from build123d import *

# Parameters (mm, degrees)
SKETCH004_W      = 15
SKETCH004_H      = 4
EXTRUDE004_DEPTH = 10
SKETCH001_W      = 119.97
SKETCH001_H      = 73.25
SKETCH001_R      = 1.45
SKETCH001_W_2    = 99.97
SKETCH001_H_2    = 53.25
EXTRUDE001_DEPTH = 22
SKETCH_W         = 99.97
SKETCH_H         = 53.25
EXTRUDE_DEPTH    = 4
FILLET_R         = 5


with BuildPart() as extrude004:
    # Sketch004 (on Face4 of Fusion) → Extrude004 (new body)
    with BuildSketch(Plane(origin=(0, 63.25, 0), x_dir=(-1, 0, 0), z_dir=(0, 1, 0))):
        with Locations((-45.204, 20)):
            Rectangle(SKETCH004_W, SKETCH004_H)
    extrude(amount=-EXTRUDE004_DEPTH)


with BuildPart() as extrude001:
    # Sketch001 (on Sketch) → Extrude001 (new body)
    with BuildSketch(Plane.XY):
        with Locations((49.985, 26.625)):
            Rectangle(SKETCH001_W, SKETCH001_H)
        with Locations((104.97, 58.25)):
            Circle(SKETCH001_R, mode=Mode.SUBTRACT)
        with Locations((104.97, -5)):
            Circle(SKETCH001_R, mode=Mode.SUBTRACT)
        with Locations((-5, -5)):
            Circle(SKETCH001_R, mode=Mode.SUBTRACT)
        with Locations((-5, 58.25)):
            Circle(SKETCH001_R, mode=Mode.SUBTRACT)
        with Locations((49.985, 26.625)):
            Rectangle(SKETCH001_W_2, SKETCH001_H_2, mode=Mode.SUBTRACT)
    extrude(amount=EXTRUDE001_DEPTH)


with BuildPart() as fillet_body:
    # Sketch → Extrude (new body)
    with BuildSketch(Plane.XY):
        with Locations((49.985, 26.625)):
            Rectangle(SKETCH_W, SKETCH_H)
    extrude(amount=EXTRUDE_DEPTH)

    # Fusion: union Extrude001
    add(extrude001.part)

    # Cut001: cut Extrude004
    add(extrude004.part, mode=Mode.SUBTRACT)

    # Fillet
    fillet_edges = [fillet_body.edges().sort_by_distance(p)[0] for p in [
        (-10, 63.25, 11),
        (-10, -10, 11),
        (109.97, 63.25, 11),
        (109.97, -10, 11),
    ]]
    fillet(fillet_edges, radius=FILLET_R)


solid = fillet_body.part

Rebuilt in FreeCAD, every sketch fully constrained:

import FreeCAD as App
import Part
import Sketcher
from FreeCAD import Vector


def edges_at(feature, points):
    """Names of the edges that pass closest to the given points."""
    edges = feature.Shape.Edges
    near = lambda p: min(range(len(edges)), key=lambda i: edges[i].distToShape(Part.Vertex(*p))[0])
    return sorted({f"Edge{near(p) + 1}" for p in points})


def add_polygon(sketch, points):
    """Adds a closed chain of lines whose ends are joined by coincident constraints."""
    first, n = sketch.GeometryCount, len(points)
    for a, b in zip(points, points[1:] + points[:1]):
        sketch.addGeometry(Part.LineSegment(App.Vector(*a, 0), App.Vector(*b, 0)), False)
    for i in range(n):
        sketch.addConstraint(Sketcher.Constraint("Coincident", first + i, 2, first + (i + 1) % n, 1))

doc = App.newDocument("Part")
body = doc.addObject("PartDesign::Body", "Body")

sketch1 = body.newObject("Sketcher::SketchObject", "Sketch")
sketch1.AttachmentSupport = (doc.getObject("XZ_Plane"), [""])
sketch1.MapMode = "FlatFace"
sketch1.AttachmentOffset = App.Placement(Vector(0, 0, -63.25), App.Rotation())
add_polygon(sketch1, [(52.7, 22), (52.7, 18), (37.7, 18), (37.7, 22)])
sketch1.addConstraint([
    Sketcher.Constraint("Vertical", 0),
    Sketcher.Constraint("Horizontal", 1),
    Sketcher.Constraint("Vertical", 2),
    Sketcher.Constraint("Horizontal", 3),
    Sketcher.Constraint("DistanceX", 1, 2, 1, 1, 15.0),
    Sketcher.Constraint("DistanceY", 0, 2, 0, 1, 4.0),
    Sketcher.Constraint("DistanceY", -1, 1, 0, 2, 18.0),
    Sketcher.Constraint("DistanceX", -1, 1, 0, 2, 52.704),
])
pad1 = body.newObject("PartDesign::Pad", "Pad")
pad1.Profile = sketch1
pad1.Length = 10
body2 = doc.addObject("PartDesign::Body", "Body001")

sketch2 = body2.newObject("Sketcher::SketchObject", "Sketch001")
sketch2.AttachmentSupport = (doc.getObject("XY_Plane001"), [""])
sketch2.MapMode = "FlatFace"
add_polygon(sketch2, [(-10, 63.2), (-10, -10), (110, -10), (110, 63.2)])
sketch2.addGeometry(Part.Circle(Vector(-5, -5, 0), Vector(0, 0, 1), 1.4), False)
sketch2.addGeometry(Part.Circle(Vector(105, -5, 0), Vector(0, 0, 1), 1.4), False)
sketch2.addGeometry(Part.Circle(Vector(-5, 58.2, 0), Vector(0, 0, 1), 1.4), False)
add_polygon(sketch2, [(100, 0), (0, 0), (0, 53.2), (100, 53.2)])
sketch2.addGeometry(Part.Circle(Vector(105, 58.2, 0), Vector(0, 0, 1), 1.4), False)
sketch2.addConstraint([
    Sketcher.Constraint("Vertical", 0),
    Sketcher.Constraint("Horizontal", 1),
    Sketcher.Constraint("Vertical", 2),
    Sketcher.Constraint("Horizontal", 3),
    Sketcher.Constraint("Horizontal", 7),
    Sketcher.Constraint("Vertical", 8),
    Sketcher.Constraint("Horizontal", 9),
    Sketcher.Constraint("Vertical", 10),
    Sketcher.Constraint("Coincident", 7, 2, -1, 1),
    Sketcher.Constraint("Equal", 4, 5),
    Sketcher.Constraint("Equal", 5, 6),
    Sketcher.Constraint("Equal", 6, 11),
    Sketcher.Constraint("Horizontal", 4, 3, 5, 3),
    Sketcher.Constraint("Horizontal", 6, 3, 11, 3),
    Sketcher.Constraint("Vertical", 4, 3, 6, 3),
    Sketcher.Constraint("Vertical", 5, 3, 11, 3),
    Sketcher.Constraint("Diameter", 4, 2.9),
    Sketcher.Constraint("DistanceX", 4, 3, -1, 1, 5.0),
    Sketcher.Constraint("DistanceY", 4, 3, -1, 1, 5.0),
    Sketcher.Constraint("DistanceX", 0, 2, -1, 1, 10.0),
    Sketcher.Constraint("DistanceY", 0, 2, -1, 1, 10.0),
    Sketcher.Constraint("DistanceX", 5, 3, 1, 2, 5.0),
    Sketcher.Constraint("DistanceY", 11, 3, 2, 2, 5.0),
    Sketcher.Constraint("DistanceY", 8, 2, 6, 3, 5.0),
    Sketcher.Constraint("DistanceX", 9, 2, 11, 3, 5.0),
    Sketcher.Constraint("DistanceX", 1, 1, 1, 2, 119.97),
    Sketcher.Constraint("DistanceY", 0, 2, 0, 1, 73.25),
])
pad2 = body2.newObject("PartDesign::Pad", "Pad001")
pad2.Profile = sketch2
pad2.Length = 22
body3 = doc.addObject("PartDesign::Body", "Body002")

sketch3 = body3.newObject("Sketcher::SketchObject", "Sketch002")
sketch3.AttachmentSupport = (doc.getObject("XY_Plane002"), [""])
sketch3.MapMode = "FlatFace"
add_polygon(sketch3, [(0, 53), (0, 0), (100, 0), (100, 53)])
sketch3.addConstraint([
    Sketcher.Constraint("Vertical", 0),
    Sketcher.Constraint("Horizontal", 1),
    Sketcher.Constraint("Vertical", 2),
    Sketcher.Constraint("Horizontal", 3),
    Sketcher.Constraint("Coincident", 0, 2, -1, 1),
    Sketcher.Constraint("DistanceX", 1, 1, 1, 2, 99.97),
    Sketcher.Constraint("DistanceY", 0, 2, 0, 1, 53.25),
])
pad3 = body3.newObject("PartDesign::Pad", "Pad002")
pad3.Profile = sketch3
pad3.Length = 4
doc.recompute()

boolean = body3.newObject("PartDesign::Boolean", "Boolean")
boolean.Type = "Fuse"
boolean.addObjects([body2])
doc.recompute()

boolean2 = body3.newObject("PartDesign::Boolean", "Boolean001")
boolean2.Type = "Cut"
boolean2.addObjects([body])
doc.recompute()

fillet = body3.newObject("PartDesign::Fillet", "Fillet")
fillet.Base = (boolean2, edges_at(boolean2, [
    (-10, 63.25, 11),
    (-10, -10, 11),
    (109.97, 63.25, 11),
    (109.97, -10, 11),
]))
fillet.Radius = 5

doc.recompute()
